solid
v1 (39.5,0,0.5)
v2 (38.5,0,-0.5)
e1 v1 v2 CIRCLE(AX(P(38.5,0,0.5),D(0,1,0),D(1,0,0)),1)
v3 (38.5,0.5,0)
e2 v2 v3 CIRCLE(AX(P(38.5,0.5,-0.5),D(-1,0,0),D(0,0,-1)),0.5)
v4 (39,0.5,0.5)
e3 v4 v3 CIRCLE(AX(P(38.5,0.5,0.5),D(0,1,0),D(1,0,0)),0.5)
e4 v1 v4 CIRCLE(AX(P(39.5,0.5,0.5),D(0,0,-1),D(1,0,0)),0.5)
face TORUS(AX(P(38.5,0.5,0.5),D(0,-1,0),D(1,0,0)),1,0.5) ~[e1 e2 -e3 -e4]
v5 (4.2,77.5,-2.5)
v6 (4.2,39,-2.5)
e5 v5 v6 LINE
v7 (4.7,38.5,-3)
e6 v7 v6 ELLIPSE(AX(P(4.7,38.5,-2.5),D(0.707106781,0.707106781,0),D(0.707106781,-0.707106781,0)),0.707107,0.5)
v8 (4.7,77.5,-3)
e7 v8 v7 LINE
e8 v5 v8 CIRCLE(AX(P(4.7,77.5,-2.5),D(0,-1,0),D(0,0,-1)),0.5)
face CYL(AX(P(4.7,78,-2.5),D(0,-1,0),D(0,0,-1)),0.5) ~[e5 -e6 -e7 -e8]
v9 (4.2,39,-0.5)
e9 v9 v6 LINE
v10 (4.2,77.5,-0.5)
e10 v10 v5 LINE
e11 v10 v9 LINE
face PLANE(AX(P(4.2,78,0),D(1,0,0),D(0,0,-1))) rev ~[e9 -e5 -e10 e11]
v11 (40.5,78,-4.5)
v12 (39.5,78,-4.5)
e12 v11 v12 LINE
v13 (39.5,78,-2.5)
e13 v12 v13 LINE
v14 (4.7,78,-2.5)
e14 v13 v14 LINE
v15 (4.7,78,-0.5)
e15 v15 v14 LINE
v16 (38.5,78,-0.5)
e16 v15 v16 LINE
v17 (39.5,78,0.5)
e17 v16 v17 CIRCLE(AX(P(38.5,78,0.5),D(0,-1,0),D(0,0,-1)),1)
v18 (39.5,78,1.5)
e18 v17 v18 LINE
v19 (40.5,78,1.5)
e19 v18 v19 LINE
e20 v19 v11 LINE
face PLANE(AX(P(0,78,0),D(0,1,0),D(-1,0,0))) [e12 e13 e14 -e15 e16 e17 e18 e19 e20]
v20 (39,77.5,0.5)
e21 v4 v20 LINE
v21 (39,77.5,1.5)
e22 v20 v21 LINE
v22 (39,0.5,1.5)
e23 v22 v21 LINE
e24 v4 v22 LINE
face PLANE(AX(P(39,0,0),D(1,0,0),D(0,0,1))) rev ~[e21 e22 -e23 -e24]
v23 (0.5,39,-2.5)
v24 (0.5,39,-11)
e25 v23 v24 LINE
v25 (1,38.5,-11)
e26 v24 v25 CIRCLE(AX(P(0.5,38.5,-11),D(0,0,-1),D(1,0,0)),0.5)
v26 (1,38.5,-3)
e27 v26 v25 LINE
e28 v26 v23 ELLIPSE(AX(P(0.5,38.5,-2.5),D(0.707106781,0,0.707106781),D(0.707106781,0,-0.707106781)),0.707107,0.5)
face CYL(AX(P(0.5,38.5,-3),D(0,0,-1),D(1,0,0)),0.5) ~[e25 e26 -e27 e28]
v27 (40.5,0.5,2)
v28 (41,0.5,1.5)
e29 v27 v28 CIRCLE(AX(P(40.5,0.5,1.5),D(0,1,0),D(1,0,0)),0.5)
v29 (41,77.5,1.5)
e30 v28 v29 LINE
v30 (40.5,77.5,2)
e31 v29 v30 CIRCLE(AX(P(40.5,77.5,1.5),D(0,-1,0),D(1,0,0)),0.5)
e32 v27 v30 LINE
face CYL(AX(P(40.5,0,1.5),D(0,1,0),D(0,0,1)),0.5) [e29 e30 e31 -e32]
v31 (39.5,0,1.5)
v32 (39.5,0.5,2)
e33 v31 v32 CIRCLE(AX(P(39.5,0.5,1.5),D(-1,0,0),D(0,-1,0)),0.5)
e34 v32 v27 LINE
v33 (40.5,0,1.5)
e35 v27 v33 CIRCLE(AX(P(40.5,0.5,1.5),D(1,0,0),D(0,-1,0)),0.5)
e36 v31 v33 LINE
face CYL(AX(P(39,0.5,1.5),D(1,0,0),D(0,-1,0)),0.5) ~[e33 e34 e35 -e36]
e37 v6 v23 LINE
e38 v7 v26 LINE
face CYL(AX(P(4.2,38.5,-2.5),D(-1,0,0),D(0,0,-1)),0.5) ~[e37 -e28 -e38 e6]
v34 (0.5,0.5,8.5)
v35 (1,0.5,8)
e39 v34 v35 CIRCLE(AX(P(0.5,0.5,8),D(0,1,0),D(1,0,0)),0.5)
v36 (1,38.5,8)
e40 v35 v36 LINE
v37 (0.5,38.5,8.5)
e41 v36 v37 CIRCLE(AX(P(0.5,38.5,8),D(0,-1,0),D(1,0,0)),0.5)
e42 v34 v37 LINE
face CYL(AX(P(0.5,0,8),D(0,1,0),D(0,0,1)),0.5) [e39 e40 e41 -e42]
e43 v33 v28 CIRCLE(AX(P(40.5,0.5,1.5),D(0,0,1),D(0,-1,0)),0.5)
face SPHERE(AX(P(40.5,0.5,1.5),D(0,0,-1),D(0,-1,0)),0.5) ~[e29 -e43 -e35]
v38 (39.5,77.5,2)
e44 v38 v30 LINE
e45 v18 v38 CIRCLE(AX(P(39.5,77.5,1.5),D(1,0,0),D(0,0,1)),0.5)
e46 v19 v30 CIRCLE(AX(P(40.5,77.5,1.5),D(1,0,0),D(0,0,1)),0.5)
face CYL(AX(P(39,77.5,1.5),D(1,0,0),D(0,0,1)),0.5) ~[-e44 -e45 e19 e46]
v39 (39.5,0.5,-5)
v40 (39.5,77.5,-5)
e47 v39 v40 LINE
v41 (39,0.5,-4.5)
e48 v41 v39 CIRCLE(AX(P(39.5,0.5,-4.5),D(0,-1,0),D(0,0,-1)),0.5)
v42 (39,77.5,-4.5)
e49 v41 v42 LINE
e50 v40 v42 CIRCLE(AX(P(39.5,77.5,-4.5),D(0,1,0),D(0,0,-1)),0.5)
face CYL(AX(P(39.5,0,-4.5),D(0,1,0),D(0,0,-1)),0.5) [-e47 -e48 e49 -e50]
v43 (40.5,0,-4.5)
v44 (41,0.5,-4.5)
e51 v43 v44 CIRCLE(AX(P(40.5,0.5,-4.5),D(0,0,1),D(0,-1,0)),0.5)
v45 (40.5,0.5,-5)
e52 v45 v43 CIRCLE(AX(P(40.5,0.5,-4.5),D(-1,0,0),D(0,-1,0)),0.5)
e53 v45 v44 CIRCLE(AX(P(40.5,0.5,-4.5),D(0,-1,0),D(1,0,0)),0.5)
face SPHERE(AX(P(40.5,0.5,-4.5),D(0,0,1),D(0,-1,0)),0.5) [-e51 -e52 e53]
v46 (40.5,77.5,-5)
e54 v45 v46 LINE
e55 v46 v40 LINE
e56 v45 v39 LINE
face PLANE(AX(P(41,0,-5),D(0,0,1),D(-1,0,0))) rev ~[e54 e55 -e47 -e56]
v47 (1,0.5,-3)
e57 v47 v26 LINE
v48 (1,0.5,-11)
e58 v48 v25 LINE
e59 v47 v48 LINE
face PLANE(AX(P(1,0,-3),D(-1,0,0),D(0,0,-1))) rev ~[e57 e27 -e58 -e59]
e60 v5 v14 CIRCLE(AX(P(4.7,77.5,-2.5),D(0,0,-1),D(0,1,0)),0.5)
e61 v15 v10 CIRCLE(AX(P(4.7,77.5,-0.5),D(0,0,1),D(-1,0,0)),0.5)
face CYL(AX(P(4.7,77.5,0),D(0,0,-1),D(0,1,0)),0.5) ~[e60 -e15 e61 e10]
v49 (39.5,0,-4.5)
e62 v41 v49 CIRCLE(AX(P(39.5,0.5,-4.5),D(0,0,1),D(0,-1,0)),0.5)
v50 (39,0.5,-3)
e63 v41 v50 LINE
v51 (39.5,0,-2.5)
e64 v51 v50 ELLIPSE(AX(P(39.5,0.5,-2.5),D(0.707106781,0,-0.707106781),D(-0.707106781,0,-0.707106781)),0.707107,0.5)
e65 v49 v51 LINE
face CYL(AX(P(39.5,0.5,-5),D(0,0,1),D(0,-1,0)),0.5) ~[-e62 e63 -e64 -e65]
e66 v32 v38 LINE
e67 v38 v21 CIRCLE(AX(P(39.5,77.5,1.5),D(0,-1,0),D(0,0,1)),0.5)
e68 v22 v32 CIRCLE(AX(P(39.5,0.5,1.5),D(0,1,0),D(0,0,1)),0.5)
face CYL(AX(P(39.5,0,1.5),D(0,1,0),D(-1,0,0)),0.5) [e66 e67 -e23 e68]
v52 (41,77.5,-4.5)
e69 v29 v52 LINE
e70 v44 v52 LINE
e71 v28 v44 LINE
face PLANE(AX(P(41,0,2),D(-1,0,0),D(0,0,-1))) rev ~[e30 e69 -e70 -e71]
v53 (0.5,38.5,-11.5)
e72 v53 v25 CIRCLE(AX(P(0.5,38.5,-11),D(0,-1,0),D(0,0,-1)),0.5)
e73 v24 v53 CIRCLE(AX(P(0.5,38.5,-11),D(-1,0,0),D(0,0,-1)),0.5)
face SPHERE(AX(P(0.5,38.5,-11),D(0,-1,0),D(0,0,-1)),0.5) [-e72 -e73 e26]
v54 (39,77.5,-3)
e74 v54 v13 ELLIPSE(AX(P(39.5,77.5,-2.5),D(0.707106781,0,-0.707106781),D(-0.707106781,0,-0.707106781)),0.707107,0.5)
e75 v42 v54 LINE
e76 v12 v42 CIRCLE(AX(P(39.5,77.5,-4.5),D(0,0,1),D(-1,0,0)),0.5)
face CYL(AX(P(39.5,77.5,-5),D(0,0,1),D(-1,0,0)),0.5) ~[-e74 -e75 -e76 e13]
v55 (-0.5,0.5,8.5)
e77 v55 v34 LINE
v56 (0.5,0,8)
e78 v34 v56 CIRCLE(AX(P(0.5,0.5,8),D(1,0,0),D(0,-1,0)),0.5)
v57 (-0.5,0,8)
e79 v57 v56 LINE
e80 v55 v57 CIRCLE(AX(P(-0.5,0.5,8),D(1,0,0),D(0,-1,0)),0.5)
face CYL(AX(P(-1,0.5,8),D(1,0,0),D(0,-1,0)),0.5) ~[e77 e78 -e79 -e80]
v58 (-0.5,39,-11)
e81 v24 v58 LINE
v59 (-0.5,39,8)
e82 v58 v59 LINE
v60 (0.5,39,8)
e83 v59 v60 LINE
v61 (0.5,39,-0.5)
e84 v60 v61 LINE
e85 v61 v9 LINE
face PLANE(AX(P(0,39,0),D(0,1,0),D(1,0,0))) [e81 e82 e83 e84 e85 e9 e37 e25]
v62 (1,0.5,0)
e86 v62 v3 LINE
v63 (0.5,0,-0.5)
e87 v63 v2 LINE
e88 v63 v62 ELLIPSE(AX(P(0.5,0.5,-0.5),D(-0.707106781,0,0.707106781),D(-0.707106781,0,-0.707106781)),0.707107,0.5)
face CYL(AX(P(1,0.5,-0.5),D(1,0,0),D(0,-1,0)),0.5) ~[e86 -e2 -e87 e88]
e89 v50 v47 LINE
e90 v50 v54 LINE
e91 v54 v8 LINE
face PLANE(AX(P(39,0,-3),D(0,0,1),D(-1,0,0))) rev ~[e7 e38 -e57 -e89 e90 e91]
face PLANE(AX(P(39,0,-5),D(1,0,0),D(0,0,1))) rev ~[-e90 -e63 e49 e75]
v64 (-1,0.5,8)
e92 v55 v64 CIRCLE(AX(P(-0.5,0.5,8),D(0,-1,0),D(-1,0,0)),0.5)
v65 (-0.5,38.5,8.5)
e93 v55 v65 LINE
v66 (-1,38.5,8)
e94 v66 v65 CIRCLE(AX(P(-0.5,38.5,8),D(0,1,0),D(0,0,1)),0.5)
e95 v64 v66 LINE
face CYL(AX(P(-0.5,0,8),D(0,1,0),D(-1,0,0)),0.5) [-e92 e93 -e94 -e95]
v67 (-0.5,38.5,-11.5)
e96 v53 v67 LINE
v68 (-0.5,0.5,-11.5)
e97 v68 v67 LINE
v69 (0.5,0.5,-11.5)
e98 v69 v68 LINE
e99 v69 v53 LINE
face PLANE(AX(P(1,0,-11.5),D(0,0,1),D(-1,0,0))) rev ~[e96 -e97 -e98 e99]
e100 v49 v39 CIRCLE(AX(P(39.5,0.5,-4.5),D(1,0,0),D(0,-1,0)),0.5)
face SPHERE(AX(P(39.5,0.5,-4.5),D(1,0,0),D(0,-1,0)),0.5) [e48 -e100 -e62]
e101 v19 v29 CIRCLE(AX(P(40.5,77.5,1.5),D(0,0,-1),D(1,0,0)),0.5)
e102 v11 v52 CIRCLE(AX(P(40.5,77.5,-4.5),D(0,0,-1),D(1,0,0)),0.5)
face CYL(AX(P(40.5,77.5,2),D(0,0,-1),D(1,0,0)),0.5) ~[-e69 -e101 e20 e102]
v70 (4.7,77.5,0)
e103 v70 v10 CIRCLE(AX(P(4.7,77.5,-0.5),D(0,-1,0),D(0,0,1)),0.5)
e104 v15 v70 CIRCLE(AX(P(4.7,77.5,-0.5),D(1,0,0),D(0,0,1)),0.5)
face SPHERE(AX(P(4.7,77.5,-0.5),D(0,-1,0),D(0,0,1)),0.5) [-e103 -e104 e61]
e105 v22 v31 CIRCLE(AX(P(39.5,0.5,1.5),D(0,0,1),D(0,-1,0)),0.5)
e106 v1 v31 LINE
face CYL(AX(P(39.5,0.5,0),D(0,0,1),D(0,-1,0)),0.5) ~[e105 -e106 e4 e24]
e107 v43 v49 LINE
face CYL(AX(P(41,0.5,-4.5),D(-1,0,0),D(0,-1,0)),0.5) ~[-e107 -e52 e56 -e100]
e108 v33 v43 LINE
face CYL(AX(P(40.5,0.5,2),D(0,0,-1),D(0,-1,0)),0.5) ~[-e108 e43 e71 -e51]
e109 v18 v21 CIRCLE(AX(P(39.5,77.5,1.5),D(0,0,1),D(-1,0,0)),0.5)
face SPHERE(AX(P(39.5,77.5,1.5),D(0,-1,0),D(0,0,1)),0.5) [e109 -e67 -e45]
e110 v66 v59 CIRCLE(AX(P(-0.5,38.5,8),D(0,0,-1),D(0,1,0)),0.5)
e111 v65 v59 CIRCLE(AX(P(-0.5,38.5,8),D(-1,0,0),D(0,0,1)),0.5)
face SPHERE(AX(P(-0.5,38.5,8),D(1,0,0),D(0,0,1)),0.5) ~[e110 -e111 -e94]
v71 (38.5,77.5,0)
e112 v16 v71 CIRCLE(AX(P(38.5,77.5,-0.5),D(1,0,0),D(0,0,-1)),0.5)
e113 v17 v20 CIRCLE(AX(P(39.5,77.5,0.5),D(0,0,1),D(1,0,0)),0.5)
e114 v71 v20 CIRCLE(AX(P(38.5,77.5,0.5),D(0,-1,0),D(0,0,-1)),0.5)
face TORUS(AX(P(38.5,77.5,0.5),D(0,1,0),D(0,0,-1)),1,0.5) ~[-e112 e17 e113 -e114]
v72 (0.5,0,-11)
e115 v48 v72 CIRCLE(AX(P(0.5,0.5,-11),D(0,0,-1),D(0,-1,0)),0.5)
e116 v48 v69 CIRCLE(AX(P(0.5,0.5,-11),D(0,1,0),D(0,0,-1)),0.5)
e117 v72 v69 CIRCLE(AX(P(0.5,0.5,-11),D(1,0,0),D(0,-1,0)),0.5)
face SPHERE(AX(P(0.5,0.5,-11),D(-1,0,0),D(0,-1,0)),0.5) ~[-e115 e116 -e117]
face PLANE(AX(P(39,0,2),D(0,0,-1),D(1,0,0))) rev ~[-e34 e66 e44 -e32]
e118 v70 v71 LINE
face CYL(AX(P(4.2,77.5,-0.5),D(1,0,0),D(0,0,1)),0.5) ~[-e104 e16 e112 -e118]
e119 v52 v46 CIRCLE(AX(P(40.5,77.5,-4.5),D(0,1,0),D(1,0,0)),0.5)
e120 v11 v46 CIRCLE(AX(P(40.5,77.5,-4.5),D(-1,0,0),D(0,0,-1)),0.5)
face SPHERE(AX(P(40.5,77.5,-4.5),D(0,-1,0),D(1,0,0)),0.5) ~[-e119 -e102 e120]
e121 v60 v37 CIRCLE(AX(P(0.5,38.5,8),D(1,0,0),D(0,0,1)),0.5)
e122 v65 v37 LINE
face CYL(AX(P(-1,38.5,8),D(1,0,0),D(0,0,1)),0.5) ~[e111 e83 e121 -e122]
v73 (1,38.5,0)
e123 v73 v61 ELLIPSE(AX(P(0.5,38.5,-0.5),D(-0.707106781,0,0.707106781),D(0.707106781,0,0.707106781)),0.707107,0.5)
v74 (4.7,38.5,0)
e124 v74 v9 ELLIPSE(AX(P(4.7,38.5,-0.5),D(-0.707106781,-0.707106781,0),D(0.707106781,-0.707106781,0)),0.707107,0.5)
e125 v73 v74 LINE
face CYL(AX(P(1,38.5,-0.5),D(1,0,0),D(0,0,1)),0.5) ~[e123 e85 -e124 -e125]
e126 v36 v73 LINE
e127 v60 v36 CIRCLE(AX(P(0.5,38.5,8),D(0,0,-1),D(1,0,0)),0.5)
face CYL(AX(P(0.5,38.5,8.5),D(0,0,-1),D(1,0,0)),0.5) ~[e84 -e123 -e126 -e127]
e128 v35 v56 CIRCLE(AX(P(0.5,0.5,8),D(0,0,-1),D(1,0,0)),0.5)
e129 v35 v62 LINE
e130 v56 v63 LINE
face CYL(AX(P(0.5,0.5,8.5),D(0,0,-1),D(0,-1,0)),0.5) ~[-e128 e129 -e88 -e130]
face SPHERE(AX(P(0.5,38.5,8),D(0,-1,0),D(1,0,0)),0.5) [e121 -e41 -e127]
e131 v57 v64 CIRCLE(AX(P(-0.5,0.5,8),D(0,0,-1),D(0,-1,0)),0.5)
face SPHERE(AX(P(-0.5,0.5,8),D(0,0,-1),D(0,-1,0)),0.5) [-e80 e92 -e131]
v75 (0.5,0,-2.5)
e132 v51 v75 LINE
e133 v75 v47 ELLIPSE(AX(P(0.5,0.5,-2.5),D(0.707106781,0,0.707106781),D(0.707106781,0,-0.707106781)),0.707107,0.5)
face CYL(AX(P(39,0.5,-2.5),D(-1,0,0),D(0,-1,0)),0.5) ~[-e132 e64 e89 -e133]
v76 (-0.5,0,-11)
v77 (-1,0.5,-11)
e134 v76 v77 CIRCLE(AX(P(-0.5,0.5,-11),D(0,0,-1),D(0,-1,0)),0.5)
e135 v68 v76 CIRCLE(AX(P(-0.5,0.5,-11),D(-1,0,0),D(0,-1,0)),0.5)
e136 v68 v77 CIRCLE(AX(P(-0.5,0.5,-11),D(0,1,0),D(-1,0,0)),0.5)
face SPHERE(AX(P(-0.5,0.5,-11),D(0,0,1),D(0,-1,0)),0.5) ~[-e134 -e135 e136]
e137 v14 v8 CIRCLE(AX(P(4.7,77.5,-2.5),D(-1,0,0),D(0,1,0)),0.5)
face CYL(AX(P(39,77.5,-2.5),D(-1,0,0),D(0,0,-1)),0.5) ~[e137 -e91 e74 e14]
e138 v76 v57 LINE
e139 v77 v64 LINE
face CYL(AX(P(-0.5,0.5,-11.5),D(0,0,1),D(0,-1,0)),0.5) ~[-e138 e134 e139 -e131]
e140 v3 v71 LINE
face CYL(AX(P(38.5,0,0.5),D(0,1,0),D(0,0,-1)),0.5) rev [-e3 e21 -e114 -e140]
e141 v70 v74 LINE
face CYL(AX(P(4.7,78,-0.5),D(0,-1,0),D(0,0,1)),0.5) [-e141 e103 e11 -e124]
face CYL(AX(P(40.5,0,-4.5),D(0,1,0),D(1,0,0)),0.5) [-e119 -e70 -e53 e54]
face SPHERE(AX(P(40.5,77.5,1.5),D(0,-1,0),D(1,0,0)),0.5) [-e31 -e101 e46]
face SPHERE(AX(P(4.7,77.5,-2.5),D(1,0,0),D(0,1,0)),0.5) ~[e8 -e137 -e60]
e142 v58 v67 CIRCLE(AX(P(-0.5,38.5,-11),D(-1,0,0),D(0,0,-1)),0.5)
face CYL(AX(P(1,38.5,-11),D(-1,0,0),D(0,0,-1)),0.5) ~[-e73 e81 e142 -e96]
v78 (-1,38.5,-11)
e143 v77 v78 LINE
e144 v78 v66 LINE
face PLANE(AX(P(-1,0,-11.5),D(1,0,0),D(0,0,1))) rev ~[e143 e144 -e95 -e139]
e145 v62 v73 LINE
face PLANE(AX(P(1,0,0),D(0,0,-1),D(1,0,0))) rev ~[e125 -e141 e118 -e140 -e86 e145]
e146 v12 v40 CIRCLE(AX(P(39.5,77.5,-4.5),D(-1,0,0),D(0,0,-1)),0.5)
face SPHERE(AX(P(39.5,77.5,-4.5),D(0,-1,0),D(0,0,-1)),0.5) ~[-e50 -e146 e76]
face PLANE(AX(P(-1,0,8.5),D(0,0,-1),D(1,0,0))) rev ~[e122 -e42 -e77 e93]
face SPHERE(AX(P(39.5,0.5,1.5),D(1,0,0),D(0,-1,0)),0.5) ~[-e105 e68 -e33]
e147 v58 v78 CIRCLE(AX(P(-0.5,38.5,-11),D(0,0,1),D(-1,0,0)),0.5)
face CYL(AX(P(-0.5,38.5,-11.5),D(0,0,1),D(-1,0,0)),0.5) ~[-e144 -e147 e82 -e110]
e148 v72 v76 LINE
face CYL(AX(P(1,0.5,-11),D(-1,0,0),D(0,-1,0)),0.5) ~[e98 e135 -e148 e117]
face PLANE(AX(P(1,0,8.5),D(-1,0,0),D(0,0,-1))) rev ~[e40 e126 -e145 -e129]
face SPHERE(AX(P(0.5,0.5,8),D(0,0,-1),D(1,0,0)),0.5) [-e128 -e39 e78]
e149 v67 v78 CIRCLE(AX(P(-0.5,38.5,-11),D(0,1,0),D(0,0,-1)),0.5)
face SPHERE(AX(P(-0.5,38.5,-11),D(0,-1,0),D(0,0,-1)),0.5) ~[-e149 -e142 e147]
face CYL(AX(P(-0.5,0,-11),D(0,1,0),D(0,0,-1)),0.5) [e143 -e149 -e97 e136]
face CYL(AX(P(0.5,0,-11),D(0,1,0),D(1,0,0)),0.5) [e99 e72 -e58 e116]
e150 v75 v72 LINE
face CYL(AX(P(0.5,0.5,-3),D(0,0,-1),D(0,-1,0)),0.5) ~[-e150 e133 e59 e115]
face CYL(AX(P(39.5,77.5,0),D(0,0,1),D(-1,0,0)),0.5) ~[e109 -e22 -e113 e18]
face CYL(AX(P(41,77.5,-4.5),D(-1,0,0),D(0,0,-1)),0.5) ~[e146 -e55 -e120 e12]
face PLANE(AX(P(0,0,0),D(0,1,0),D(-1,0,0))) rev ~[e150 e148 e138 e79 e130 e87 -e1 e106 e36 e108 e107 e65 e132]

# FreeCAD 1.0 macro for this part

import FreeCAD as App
import Part
import Sketcher
Q = App.Units.Quantity


def edges_at(feature, points):
    """Names of the edges that pass closest to the given points."""
    edges = feature.Shape.Edges
    near = lambda p: min(range(len(edges)), key=lambda i: edges[i].distToShape(Part.Vertex(*p))[0])
    return sorted({f"Edge{near(p) + 1}" for p in points})

doc = App.newDocument("Part")
body = doc.addObject("PartDesign::Body", "Body")

# Sketch on XZ plane
sketch1 = body.newObject("Sketcher::SketchObject", "Sketch")
sketch1.AttachmentSupport = (doc.getObject("XZ_Plane"), [""])
sketch1.MapMode = "FlatFace"
sketch1.addGeometry([
    Part.LineSegment(App.Vector(1, -3, 0), App.Vector(1, -11.5, 0)),  # 0
    Part.LineSegment(App.Vector(1, -11.5, 0), App.Vector(-1, -11.5, 0)),  # 1
    Part.LineSegment(App.Vector(-1, -11.5, 0), App.Vector(-1, 8.5, 0)),  # 2
    Part.LineSegment(App.Vector(-1, 8.5, 0), App.Vector(1, 8.5, 0)),  # 3
    Part.LineSegment(App.Vector(1, 8.5, 0), App.Vector(1, 0, 0)),  # 4
    Part.LineSegment(App.Vector(1, 0, 0), App.Vector(39, 0, 0)),  # 5
    Part.LineSegment(App.Vector(39, 0, 0), App.Vector(39, 2, 0)),  # 6
    Part.LineSegment(App.Vector(39, 2, 0), App.Vector(41, 2, 0)),  # 7
    Part.LineSegment(App.Vector(41, 2, 0), App.Vector(41, -5, 0)),  # 8
    Part.LineSegment(App.Vector(41, -5, 0), App.Vector(39, -5, 0)),  # 9
    Part.LineSegment(App.Vector(39, -5, 0), App.Vector(39, -3, 0)),  # 10
    Part.LineSegment(App.Vector(39, -3, 0), App.Vector(1, -3, 0)),  # 11
], False)
sketch1.addConstraint([
    Sketcher.Constraint("Coincident", 0, 2, 1, 1),
    Sketcher.Constraint("Coincident", 1, 2, 2, 1),
    Sketcher.Constraint("Coincident", 2, 2, 3, 1),
    Sketcher.Constraint("Coincident", 3, 2, 4, 1),
    Sketcher.Constraint("Coincident", 4, 2, 5, 1),
    Sketcher.Constraint("Coincident", 5, 2, 6, 1),
    Sketcher.Constraint("Coincident", 6, 2, 7, 1),
    Sketcher.Constraint("Coincident", 7, 2, 8, 1),
    Sketcher.Constraint("Coincident", 8, 2, 9, 1),
    Sketcher.Constraint("Coincident", 9, 2, 10, 1),
    Sketcher.Constraint("Coincident", 10, 2, 11, 1),
    Sketcher.Constraint("Coincident", 11, 2, 0, 1),
    Sketcher.Constraint("Vertical", 0),
    Sketcher.Constraint("Horizontal", 1),
    Sketcher.Constraint("Vertical", 2),
    Sketcher.Constraint("Horizontal", 3),
    Sketcher.Constraint("Vertical", 4),
    Sketcher.Constraint("Horizontal", 5),
    Sketcher.Constraint("Vertical", 6),
    Sketcher.Constraint("Horizontal", 7),
    Sketcher.Constraint("Vertical", 8),
    Sketcher.Constraint("Horizontal", 9),
    Sketcher.Constraint("Vertical", 10),
    Sketcher.Constraint("Horizontal", 11),
    Sketcher.Constraint("PointOnObject", 4, 2, -1),
    Sketcher.Constraint("Vertical", 0, 2, 3, 2),
    Sketcher.Constraint("Vertical", 6, 2, 9, 2),
    Sketcher.Constraint("Equal", 3, 7),
    Sketcher.Constraint("Equal", 0, 4),
    Sketcher.Constraint("Equal", 9, 6),
    Sketcher.Constraint("Equal", 6, 10),
    Sketcher.Constraint("DistanceX", 1, 2, 1, 1, Q("2 mm")),
    Sketcher.Constraint("DistanceY", 2, 1, 2, 2, Q("20 mm")),
    Sketcher.Constraint("DistanceY", 8, 2, 8, 1, Q("7 mm")),
    Sketcher.Constraint("DistanceX", 2, 2, 5, 2, Q("40 mm")),
    Sketcher.Constraint("DistanceX", -1, 1, 0, 2, Q("1 mm")),
])
pad1 = body.newObject("PartDesign::Pad", "Pad")
pad1.Profile = sketch1
pad1.Length = 78
pad1.Reversed = True

# Sketch on XZ plane
sketch2 = body.newObject("Sketcher::SketchObject", "Sketch001")
sketch2.AttachmentSupport = (doc.getObject("XZ_Plane"), [""])
sketch2.MapMode = "FlatFace"
sketch2.AttachmentOffset = App.Placement(App.Vector(0, 0, -78), App.Rotation())
sketch2.addGeometry([
    Part.LineSegment(App.Vector(1, 8.5, 0), App.Vector(1, 0, 0)),  # 0
    Part.LineSegment(App.Vector(1, 0, 0), App.Vector(4.2, 0, 0)),  # 1
    Part.LineSegment(App.Vector(4.2, 0, 0), App.Vector(4.2, -3, 0)),  # 2
    Part.LineSegment(App.Vector(4.2, -3, 0), App.Vector(1, -3, 0)),  # 3
    Part.LineSegment(App.Vector(1, -3, 0), App.Vector(1, -11.5, 0)),  # 4
    Part.LineSegment(App.Vector(1, -11.5, 0), App.Vector(-1, -11.5, 0)),  # 5
    Part.LineSegment(App.Vector(-1, -11.5, 0), App.Vector(-1, 8.5, 0)),  # 6
    Part.LineSegment(App.Vector(-1, 8.5, 0), App.Vector(1, 8.5, 0)),  # 7
], False)
sketch2.addConstraint([
    Sketcher.Constraint("Coincident", 0, 2, 1, 1),
    Sketcher.Constraint("Coincident", 1, 2, 2, 1),
    Sketcher.Constraint("Coincident", 2, 2, 3, 1),
    Sketcher.Constraint("Coincident", 3, 2, 4, 1),
    Sketcher.Constraint("Coincident", 4, 2, 5, 1),
    Sketcher.Constraint("Coincident", 5, 2, 6, 1),
    Sketcher.Constraint("Coincident", 6, 2, 7, 1),
    Sketcher.Constraint("Coincident", 7, 2, 0, 1),
    Sketcher.Constraint("Vertical", 0),
    Sketcher.Constraint("Horizontal", 1),
    Sketcher.Constraint("Vertical", 2),
    Sketcher.Constraint("Horizontal", 3),
    Sketcher.Constraint("Vertical", 4),
    Sketcher.Constraint("Horizontal", 5),
    Sketcher.Constraint("Vertical", 6),
    Sketcher.Constraint("Horizontal", 7),
    Sketcher.Constraint("PointOnObject", 0, 2, -1),
    Sketcher.Constraint("Vertical", 0, 2, 3, 2),
    Sketcher.Constraint("Equal", 0, 4),
    Sketcher.Constraint("DistanceX", 5, 2, 5, 1, Q("2 mm")),
    Sketcher.Constraint("DistanceY", 2, 2, 2, 1, Q("3 mm")),
    Sketcher.Constraint("DistanceY", 6, 1, 6, 2, Q("20 mm")),
    Sketcher.Constraint("DistanceX", 1, 1, 1, 2, Q("3.2 mm")),
    Sketcher.Constraint("DistanceX", -1, 1, 0, 2, Q("1 mm")),
])
pocket1 = body.newObject("PartDesign::Pocket", "Pocket")
pocket1.Profile = sketch2
pocket1.Length = 39
pocket1.Reversed = True
doc.recompute()

fillet = body.newObject("PartDesign::Fillet", "Fillet")
fillet.Base = (pocket1, edges_at(pocket1, [
    (1, 0, 4.25),
    (-1, 0, -1.5),
    (1, 19.5, 8.5),
    (0, 0, -11.5),
    (1, 0, -7.25),
    (20, 0, 0),
    (20, 0, -3),
    (0, 0, 8.5),
    (41, 0, -1.5),
    (40, 0, 2),
    (39, 39, 0),
    (40, 0, -5),
    (39, 0, 1),
    (39, 0, -4),
    (41, 39, -5),
    (39, 39, -5),
    (41, 39, 2),
    (41, 78, -1.5),
    (40, 78, -5),
    (21.6, 78, -3),
    (4.2, 58.5, 0),
    (2.6, 39, 0),
    (1, 39, 4.25),
    (0, 39, 8.5),
    (-1, 19.5, 8.5),
    (39, 39, 2),
    (21.6, 78, 0),
    (40, 78, 2),
    (39, 78, 1),
    (4.2, 78, -1.5),
    (4.2, 58.5, -3),
    (39, 78, -4),
    (-1, 19.5, -11.5),
    (1, 19.5, -11.5),
    (0, 39, -11.5),
    (1, 39, -7.25),
    (-1, 39, -1.5),
    (2.6, 39, -3),
]))
fillet.Radius = 0.5

doc.recompute()
